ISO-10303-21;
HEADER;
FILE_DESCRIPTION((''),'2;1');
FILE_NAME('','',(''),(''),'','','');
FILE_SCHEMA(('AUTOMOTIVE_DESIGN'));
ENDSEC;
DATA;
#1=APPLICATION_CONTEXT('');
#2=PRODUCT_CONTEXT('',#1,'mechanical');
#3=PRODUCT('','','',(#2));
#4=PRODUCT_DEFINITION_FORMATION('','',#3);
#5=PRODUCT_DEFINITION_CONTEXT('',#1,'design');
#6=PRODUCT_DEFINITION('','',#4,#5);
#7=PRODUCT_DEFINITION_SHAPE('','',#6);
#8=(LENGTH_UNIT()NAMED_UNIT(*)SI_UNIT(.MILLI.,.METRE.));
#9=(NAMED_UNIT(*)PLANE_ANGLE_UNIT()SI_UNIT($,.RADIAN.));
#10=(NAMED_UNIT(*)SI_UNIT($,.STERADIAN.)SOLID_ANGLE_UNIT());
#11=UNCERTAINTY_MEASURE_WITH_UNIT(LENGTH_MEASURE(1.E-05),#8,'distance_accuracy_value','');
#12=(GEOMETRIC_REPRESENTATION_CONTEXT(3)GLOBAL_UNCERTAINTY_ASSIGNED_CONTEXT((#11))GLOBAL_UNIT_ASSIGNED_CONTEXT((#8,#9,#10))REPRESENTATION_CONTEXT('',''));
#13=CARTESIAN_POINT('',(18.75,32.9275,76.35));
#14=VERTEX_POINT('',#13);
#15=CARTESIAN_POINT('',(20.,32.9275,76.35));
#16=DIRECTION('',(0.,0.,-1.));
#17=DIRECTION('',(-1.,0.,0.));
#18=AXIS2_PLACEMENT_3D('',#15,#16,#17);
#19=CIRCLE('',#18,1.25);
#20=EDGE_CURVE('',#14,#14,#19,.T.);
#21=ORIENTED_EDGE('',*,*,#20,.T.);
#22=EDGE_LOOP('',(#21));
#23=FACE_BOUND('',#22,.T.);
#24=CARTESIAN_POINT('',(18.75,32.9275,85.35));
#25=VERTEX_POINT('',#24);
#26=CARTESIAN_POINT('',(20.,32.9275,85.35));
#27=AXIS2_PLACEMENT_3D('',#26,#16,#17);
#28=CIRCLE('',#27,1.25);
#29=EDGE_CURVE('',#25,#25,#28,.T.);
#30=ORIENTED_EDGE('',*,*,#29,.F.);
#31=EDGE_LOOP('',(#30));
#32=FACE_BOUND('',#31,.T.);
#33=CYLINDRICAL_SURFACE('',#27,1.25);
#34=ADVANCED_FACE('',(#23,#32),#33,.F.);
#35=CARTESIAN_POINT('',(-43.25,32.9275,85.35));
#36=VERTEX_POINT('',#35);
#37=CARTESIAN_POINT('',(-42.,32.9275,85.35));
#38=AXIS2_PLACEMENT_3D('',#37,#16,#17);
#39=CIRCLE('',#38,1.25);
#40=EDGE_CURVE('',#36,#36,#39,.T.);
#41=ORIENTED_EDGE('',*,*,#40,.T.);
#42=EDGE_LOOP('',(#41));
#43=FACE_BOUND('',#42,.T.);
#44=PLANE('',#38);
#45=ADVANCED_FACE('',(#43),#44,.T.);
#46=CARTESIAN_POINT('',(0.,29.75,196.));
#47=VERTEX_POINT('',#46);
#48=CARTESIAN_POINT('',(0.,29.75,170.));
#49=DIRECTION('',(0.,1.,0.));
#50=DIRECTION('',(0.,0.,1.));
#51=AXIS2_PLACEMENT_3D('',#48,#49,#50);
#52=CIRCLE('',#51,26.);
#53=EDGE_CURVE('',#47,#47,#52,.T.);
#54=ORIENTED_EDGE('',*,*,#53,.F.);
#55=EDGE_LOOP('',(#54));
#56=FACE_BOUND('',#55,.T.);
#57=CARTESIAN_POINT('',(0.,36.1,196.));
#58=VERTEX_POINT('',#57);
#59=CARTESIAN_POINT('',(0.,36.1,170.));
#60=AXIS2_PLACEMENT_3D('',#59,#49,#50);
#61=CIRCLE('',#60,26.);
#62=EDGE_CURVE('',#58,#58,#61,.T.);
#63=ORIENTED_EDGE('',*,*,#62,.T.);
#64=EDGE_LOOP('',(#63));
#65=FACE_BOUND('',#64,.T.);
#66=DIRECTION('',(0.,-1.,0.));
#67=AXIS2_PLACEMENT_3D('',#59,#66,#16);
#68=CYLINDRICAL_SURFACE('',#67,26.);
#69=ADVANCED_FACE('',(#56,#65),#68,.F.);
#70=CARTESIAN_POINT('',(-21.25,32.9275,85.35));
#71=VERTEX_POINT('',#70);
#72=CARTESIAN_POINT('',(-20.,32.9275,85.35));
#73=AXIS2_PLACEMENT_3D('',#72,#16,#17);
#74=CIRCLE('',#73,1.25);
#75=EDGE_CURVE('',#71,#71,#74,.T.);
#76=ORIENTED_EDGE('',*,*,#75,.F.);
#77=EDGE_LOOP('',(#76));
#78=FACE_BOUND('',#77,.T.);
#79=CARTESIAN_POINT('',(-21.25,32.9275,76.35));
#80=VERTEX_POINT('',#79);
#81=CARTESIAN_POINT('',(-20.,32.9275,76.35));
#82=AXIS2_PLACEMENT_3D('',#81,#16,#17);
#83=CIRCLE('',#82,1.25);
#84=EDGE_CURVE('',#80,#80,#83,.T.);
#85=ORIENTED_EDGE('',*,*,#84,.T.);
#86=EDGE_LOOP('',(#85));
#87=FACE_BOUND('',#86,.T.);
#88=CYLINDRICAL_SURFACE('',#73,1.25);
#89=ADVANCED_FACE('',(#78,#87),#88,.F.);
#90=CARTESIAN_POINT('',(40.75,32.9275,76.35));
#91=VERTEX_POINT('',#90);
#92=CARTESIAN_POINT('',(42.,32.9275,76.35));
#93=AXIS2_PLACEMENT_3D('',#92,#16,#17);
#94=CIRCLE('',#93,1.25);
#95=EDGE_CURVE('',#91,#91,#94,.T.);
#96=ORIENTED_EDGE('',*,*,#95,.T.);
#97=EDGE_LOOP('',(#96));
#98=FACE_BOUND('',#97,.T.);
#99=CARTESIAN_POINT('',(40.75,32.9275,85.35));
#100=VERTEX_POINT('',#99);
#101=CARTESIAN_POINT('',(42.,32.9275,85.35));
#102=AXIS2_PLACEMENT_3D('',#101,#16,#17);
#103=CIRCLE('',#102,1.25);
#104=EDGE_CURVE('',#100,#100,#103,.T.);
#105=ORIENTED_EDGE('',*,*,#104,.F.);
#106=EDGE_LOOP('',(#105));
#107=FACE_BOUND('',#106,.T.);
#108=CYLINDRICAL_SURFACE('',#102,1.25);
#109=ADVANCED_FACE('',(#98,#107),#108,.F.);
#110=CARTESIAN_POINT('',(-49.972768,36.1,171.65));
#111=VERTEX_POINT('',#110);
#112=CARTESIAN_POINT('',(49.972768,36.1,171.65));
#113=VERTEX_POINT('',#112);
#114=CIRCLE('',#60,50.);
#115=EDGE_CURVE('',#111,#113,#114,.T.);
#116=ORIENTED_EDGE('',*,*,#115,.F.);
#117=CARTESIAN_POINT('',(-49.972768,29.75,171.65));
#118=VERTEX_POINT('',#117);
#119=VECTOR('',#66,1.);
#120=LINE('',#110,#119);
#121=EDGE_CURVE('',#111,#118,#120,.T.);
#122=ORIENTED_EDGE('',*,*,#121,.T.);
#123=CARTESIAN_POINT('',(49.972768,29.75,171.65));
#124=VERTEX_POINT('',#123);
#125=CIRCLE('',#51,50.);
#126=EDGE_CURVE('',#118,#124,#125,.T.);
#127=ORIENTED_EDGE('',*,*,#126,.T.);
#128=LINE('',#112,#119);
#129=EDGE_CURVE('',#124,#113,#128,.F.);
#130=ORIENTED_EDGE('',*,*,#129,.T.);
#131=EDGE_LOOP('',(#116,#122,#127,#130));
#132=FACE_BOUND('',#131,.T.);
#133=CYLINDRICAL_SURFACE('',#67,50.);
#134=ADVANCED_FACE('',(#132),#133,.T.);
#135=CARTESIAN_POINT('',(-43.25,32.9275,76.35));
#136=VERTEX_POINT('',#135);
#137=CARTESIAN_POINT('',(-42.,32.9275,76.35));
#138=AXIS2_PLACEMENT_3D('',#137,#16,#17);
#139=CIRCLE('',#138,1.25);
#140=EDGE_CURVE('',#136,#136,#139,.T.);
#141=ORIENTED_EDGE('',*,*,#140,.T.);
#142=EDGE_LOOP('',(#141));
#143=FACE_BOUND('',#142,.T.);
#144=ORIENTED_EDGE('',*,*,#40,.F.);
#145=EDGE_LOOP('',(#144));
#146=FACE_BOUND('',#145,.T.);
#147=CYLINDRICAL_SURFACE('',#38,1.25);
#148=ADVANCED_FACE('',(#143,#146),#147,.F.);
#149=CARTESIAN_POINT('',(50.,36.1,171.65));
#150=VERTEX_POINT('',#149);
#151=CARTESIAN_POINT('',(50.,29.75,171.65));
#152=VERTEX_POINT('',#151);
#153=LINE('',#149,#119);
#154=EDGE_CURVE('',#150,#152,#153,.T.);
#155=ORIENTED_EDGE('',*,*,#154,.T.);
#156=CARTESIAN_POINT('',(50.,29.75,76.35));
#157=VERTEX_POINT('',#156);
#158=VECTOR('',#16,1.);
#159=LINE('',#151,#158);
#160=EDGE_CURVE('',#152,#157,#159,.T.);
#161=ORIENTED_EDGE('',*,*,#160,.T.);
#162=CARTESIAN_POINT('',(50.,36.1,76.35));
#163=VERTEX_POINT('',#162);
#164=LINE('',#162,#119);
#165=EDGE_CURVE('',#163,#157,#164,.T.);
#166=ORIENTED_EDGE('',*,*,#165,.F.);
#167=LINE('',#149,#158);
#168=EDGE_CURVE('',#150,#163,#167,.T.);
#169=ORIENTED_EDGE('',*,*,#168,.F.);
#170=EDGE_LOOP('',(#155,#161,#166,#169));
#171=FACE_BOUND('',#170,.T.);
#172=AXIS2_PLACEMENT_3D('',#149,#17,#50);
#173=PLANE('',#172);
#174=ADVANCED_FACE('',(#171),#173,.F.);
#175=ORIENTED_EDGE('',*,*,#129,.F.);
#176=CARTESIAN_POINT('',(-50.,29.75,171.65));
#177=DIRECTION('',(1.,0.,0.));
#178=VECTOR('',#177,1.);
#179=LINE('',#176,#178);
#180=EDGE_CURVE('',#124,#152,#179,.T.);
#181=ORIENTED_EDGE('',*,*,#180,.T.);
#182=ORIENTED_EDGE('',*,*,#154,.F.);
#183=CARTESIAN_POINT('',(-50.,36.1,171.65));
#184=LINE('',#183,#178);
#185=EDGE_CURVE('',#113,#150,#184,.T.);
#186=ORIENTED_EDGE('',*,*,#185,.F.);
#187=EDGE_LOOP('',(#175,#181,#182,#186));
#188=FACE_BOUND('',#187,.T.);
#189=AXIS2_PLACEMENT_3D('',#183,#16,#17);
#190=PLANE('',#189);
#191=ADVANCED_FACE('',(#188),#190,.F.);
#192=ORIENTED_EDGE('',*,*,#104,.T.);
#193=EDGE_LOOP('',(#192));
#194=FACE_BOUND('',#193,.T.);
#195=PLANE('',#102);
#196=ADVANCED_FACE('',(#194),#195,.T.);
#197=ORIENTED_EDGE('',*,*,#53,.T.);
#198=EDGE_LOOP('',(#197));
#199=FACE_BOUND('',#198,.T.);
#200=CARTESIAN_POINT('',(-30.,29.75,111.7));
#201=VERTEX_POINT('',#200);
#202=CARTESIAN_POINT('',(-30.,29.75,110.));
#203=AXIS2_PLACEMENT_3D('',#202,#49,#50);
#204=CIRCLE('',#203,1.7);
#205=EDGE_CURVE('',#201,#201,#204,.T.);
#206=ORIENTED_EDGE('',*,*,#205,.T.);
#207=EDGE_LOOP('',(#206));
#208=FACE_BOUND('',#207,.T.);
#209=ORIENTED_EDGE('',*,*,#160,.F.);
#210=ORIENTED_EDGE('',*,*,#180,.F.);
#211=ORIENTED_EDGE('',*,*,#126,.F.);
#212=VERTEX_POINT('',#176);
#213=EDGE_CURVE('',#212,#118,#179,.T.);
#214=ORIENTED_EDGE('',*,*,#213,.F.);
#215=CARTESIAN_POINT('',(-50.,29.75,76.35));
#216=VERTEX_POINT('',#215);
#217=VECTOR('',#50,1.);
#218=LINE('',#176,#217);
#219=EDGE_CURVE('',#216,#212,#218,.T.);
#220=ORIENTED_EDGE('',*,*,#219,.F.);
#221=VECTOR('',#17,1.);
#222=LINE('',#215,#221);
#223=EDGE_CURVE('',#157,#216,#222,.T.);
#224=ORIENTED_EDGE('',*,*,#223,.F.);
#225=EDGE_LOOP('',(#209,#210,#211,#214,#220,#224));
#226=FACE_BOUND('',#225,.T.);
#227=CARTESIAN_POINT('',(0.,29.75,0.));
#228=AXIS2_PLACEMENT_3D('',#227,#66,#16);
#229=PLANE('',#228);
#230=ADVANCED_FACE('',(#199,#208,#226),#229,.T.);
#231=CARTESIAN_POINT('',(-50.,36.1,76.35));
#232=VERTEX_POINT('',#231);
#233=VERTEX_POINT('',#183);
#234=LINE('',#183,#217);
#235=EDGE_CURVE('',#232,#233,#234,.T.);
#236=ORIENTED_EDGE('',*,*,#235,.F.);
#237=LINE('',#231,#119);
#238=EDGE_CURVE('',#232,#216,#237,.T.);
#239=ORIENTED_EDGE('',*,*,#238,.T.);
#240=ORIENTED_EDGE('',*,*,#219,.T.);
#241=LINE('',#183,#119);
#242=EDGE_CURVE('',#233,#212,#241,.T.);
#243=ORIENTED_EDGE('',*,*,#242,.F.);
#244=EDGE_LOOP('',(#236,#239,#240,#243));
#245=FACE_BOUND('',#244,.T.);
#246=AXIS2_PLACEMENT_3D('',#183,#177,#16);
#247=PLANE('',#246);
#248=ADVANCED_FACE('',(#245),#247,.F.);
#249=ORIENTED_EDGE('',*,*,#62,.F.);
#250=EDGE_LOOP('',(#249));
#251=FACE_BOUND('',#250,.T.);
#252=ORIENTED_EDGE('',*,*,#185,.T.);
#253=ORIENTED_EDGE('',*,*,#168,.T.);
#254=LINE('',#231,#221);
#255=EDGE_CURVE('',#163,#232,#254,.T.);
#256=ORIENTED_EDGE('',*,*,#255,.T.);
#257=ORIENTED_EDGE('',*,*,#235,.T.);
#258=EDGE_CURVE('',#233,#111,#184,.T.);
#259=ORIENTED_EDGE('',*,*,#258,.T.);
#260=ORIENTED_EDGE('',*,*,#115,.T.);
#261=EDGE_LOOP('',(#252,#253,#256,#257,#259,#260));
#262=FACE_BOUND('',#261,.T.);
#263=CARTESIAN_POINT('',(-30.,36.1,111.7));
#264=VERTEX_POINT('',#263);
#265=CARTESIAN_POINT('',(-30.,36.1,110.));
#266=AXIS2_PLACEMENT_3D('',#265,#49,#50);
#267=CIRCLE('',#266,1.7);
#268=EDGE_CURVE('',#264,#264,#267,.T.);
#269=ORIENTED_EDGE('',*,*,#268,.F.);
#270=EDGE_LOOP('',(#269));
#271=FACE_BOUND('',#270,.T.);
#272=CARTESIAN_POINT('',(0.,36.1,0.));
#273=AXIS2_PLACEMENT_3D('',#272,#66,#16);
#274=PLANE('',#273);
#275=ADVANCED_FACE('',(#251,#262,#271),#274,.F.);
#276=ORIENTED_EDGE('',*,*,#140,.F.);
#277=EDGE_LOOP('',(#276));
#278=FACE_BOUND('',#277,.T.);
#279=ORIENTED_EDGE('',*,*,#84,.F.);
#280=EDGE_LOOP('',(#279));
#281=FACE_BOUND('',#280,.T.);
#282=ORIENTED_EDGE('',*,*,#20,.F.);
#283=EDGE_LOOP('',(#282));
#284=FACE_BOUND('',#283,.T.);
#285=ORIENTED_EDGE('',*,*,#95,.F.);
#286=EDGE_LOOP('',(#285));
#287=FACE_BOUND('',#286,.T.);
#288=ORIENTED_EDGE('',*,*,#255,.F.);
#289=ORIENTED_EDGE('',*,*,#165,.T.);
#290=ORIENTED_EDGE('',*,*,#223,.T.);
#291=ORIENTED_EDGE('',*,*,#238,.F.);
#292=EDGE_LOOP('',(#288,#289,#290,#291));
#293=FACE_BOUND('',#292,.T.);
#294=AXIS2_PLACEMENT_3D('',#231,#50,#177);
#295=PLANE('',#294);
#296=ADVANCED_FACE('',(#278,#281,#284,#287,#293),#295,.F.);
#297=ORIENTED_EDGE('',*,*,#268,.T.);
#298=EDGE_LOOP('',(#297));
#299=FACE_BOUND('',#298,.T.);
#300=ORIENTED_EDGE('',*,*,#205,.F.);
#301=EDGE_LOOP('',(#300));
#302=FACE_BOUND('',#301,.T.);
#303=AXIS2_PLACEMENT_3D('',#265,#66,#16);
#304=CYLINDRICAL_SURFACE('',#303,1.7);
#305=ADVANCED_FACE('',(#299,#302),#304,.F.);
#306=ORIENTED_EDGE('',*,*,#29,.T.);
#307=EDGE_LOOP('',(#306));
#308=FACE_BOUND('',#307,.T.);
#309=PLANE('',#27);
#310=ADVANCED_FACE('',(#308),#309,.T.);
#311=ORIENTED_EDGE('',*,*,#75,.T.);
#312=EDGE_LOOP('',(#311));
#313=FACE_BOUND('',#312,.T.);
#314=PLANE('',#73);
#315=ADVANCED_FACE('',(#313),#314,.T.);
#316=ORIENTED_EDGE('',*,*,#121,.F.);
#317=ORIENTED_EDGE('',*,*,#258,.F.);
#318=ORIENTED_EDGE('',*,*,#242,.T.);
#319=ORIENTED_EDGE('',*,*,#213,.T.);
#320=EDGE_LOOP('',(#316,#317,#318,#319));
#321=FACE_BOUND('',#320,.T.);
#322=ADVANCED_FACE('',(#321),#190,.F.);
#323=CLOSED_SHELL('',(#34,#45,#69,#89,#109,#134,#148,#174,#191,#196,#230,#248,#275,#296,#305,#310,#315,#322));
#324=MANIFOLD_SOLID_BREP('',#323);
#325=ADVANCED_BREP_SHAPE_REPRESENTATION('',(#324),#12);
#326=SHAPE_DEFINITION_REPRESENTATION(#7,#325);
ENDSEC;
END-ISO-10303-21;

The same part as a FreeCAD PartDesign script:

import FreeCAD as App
import Part
import Sketcher
Q = App.Units.Quantity

doc = App.newDocument("Part")
body = doc.addObject("PartDesign::Body", "Body")

sketch1 = doc.addObject("Sketcher::SketchObject", "Sketch")
body.addObject(sketch1)
sketch1.AttachmentSupport = (doc.XZ_Plane, [""])
sketch1.MapMode = "FlatFace"
sketch1.AttachmentOffset = App.Placement(App.Vector(0, 0, -29.75), App.Rotation())
sketch1.addGeometry(Part.LineSegment(App.Vector(-50, 76, 0), App.Vector(-50, 172, 0)), False)
sketch1.addGeometry(Part.LineSegment(App.Vector(-50, 172, 0), App.Vector(50, 172, 0)), False)
sketch1.addGeometry(Part.LineSegment(App.Vector(50, 172, 0), App.Vector(50, 76, 0)), False)
sketch1.addGeometry(Part.LineSegment(App.Vector(50, 76, 0), App.Vector(-50, 76, 0)), False)
sketch1.addConstraint(Sketcher.Constraint("Coincident", 0, 2, 1, 1))
sketch1.addConstraint(Sketcher.Constraint("Coincident", 1, 2, 2, 1))
sketch1.addConstraint(Sketcher.Constraint("Coincident", 2, 2, 3, 1))
sketch1.addConstraint(Sketcher.Constraint("Coincident", 3, 2, 0, 1))
sketch1.addConstraint(Sketcher.Constraint("Vertical", 0))
sketch1.addConstraint(Sketcher.Constraint("Horizontal", 1))
sketch1.addConstraint(Sketcher.Constraint("Vertical", 2))
sketch1.addConstraint(Sketcher.Constraint("Horizontal", 3))
sketch1.addConstraint(Sketcher.Constraint("DistanceX", 1, 1, 1, 2, Q("100 mm")))
sketch1.addConstraint(Sketcher.Constraint("DistanceY", 0, 1, 0, 2, Q("95.3 mm")))
sketch1.addConstraint(Sketcher.Constraint("DistanceX", 0, 2, -1, 1, Q("50 mm")))
sketch1.addConstraint(Sketcher.Constraint("DistanceY", -1, 1, 0, 2, Q("171.65 mm")))
pad1 = doc.addObject("PartDesign::Pad", "Pad")
body.addObject(pad1)
pad1.Profile = sketch1
pad1.Length = 6.35
pad1.Reversed = True

sketch2 = doc.addObject("Sketcher::SketchObject", "Sketch001")
body.addObject(sketch2)
sketch2.AttachmentSupport = (doc.XZ_Plane, [""])
sketch2.MapMode = "FlatFace"
sketch2.AttachmentOffset = App.Placement(App.Vector(0, 0, -29.75), App.Rotation())
sketch2.addGeometry(Part.Circle(App.Vector(0, 170, 0), App.Vector(0, 0, 1), 50), False)
sketch2.addConstraint(Sketcher.Constraint("PointOnObject", 0, 3, -2))
sketch2.addConstraint(Sketcher.Constraint("Diameter", 0, Q("100 mm")))
sketch2.addConstraint(Sketcher.Constraint("DistanceY", -1, 1, 0, 3, Q("170 mm")))
pad2 = doc.addObject("PartDesign::Pad", "Pad001")
body.addObject(pad2)
pad2.Profile = sketch2
pad2.Length = 6.35
pad2.Reversed = True

sketch3 = doc.addObject("Sketcher::SketchObject", "Sketch002")
body.addObject(sketch3)
sketch3.AttachmentSupport = (doc.XZ_Plane, [""])
sketch3.MapMode = "FlatFace"
sketch3.AttachmentOffset = App.Placement(App.Vector(0, 0, -29.75), App.Rotation())
sketch3.addGeometry(Part.Circle(App.Vector(0, 170, 0), App.Vector(0, 0, 1), 26), False)
sketch3.addConstraint(Sketcher.Constraint("PointOnObject", 0, 3, -2))
sketch3.addConstraint(Sketcher.Constraint("Diameter", 0, Q("52 mm")))
sketch3.addConstraint(Sketcher.Constraint("DistanceY", -1, 1, 0, 3, Q("170 mm")))
pocket1 = doc.addObject("PartDesign::Pocket", "Pocket")
body.addObject(pocket1)
pocket1.Profile = sketch3
pocket1.Length = 6.35

sketch4 = doc.addObject("Sketcher::SketchObject", "Sketch003")
body.addObject(sketch4)
sketch4.AttachmentSupport = (doc.XZ_Plane, [""])
sketch4.MapMode = "FlatFace"
sketch4.AttachmentOffset = App.Placement(App.Vector(0, 0, -29.75), App.Rotation())
sketch4.addGeometry(Part.Circle(App.Vector(-30, 110, 0), App.Vector(0, 0, 1), 1.7), False)
sketch4.addConstraint(Sketcher.Constraint("Diameter", 0, Q("3.4 mm")))
sketch4.addConstraint(Sketcher.Constraint("DistanceX", 0, 3, -1, 1, Q("30 mm")))
sketch4.addConstraint(Sketcher.Constraint("DistanceY", -1, 1, 0, 3, Q("110 mm")))
pocket2 = doc.addObject("PartDesign::Pocket", "Pocket001")
body.addObject(pocket2)
pocket2.Profile = sketch4
pocket2.Length = 6.35

sketch5 = doc.addObject("Sketcher::SketchObject", "Sketch004")
body.addObject(sketch5)
sketch5.AttachmentSupport = (doc.XY_Plane, [""])
sketch5.MapMode = "FlatFace"
sketch5.AttachmentOffset = App.Placement(App.Vector(0, 0, 76.35), App.Rotation())
sketch5.addGeometry(Part.Circle(App.Vector(-42, 32.9, 0), App.Vector(0, 0, 1), 1.2), False)
sketch5.addGeometry(Part.Circle(App.Vector(-20, 32.9, 0), App.Vector(0, 0, 1), 1.2), False)
sketch5.addGeometry(Part.Circle(App.Vector(20, 32.9, 0), App.Vector(0, 0, 1), 1.2), False)
sketch5.addGeometry(Part.Circle(App.Vector(42, 32.9, 0), App.Vector(0, 0, 1), 1.2), False)
sketch5.addConstraint(Sketcher.Constraint("Equal", 0, 1))
sketch5.addConstraint(Sketcher.Constraint("Equal", 1, 2))
sketch5.addConstraint(Sketcher.Constraint("Equal", 2, 3))
sketch5.addConstraint(Sketcher.Constraint("Symmetric", 1, 3, 2, 3, -2))
sketch5.addConstraint(Sketcher.Constraint("Symmetric", 0, 3, 3, 3, -2))
sketch5.addConstraint(Sketcher.Constraint("Horizontal", 0, 3, 1, 3))
sketch5.addConstraint(Sketcher.Constraint("Diameter", 0, Q("2.5 mm")))
sketch5.addConstraint(Sketcher.Constraint("DistanceX", 0, 3, -1, 1, Q("42 mm")))
sketch5.addConstraint(Sketcher.Constraint("DistanceX", 1, 3, -1, 1, Q("20 mm")))
sketch5.addConstraint(Sketcher.Constraint("DistanceY", -1, 1, 0, 3, Q("32.9275 mm")))
pocket3 = doc.addObject("PartDesign::Pocket", "Pocket002")
body.addObject(pocket3)
pocket3.Profile = sketch5
pocket3.Length = 9
pocket3.Reversed = True

doc.recompute()
